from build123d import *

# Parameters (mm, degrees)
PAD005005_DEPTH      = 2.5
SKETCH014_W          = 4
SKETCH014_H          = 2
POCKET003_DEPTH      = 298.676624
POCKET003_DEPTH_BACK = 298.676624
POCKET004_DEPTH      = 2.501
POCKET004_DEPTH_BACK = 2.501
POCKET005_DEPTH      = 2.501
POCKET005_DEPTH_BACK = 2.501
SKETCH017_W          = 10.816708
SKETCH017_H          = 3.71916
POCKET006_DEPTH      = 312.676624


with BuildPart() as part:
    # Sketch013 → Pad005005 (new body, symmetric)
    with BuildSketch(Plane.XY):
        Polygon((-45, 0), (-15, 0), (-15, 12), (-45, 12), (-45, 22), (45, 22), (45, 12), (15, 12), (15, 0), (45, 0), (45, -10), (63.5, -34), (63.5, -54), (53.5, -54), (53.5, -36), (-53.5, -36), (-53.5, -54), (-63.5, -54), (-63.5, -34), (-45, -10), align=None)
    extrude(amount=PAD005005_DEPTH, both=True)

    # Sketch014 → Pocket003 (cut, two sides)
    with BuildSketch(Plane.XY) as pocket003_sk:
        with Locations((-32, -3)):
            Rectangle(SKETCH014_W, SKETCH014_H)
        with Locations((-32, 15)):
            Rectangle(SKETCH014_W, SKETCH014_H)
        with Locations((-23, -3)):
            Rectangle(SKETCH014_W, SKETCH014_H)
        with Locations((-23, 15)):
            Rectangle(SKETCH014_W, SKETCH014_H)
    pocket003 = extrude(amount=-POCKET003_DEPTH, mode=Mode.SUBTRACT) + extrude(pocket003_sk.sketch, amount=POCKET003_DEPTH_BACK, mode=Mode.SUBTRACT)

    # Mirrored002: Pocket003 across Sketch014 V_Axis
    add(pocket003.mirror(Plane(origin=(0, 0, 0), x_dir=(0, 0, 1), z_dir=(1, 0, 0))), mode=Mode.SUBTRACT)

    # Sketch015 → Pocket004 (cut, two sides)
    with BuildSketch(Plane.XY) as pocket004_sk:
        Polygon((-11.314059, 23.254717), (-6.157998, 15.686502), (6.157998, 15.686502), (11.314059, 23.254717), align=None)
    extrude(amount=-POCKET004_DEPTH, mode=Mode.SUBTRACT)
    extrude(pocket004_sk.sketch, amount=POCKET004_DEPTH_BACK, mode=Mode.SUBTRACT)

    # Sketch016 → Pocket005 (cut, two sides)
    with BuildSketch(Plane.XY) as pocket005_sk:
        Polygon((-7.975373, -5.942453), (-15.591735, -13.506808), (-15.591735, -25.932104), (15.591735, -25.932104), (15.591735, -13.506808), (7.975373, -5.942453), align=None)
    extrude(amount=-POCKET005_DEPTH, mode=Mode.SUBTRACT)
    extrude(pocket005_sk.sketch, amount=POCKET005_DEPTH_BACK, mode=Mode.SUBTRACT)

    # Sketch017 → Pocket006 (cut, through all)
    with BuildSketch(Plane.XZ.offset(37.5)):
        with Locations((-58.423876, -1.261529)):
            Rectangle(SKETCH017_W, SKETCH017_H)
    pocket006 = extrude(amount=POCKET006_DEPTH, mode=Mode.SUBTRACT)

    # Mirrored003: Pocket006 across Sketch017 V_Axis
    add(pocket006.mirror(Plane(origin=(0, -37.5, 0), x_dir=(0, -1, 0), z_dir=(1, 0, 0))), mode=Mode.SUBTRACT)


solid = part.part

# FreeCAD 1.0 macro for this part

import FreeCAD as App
import Part
import Sketcher
Q = App.Units.Quantity

doc = App.newDocument("Part")
body = doc.addObject("PartDesign::Body", "Body")

sketch1 = body.newObject("Sketcher::SketchObject", "Sketch")
sketch1.AttachmentSupport = (doc.getObject("XY_Plane"), [""])
sketch1.MapMode = "FlatFace"
sketch1.addGeometry(Part.LineSegment(App.Vector(-15, 0, 0), App.Vector(-45, 0, 0)), False)
sketch1.addGeometry(Part.LineSegment(App.Vector(-45, 0, 0), App.Vector(-45, -10, 0)), False)
sketch1.addGeometry(Part.LineSegment(App.Vector(-45, -10, 0), App.Vector(-63.5, -34, 0)), False)
sketch1.addGeometry(Part.LineSegment(App.Vector(-63.5, -34, 0), App.Vector(-63.5, -54, 0)), False)
sketch1.addGeometry(Part.LineSegment(App.Vector(-63.5, -54, 0), App.Vector(-53.5, -54, 0)), False)
sketch1.addGeometry(Part.LineSegment(App.Vector(-53.5, -54, 0), App.Vector(-53.5, -36, 0)), False)
sketch1.addGeometry(Part.LineSegment(App.Vector(-53.5, -36, 0), App.Vector(53.5, -36, 0)), False)
sketch1.addGeometry(Part.LineSegment(App.Vector(53.5, -36, 0), App.Vector(53.5, -54, 0)), False)
sketch1.addGeometry(Part.LineSegment(App.Vector(53.5, -54, 0), App.Vector(63.5, -54, 0)), False)
sketch1.addGeometry(Part.LineSegment(App.Vector(63.5, -54, 0), App.Vector(63.5, -34, 0)), False)
sketch1.addGeometry(Part.LineSegment(App.Vector(63.5, -34, 0), App.Vector(45, -10, 0)), False)
sketch1.addGeometry(Part.LineSegment(App.Vector(45, -10, 0), App.Vector(45, 0, 0)), False)
sketch1.addGeometry(Part.LineSegment(App.Vector(45, 0, 0), App.Vector(15, 0, 0)), False)
sketch1.addGeometry(Part.LineSegment(App.Vector(15, 0, 0), App.Vector(15, 12, 0)), False)
sketch1.addGeometry(Part.LineSegment(App.Vector(15, 12, 0), App.Vector(45, 12, 0)), False)
sketch1.addGeometry(Part.LineSegment(App.Vector(45, 12, 0), App.Vector(45, 22, 0)), False)
sketch1.addGeometry(Part.LineSegment(App.Vector(45, 22, 0), App.Vector(-45, 22, 0)), False)
sketch1.addGeometry(Part.LineSegment(App.Vector(-45, 22, 0), App.Vector(-45, 12, 0)), False)
sketch1.addGeometry(Part.LineSegment(App.Vector(-45, 12, 0), App.Vector(-15, 12, 0)), False)
sketch1.addGeometry(Part.LineSegment(App.Vector(-15, 12, 0), App.Vector(-15, 0, 0)), False)
sketch1.addConstraint(Sketcher.Constraint("Coincident", 0, 2, 1, 1))
sketch1.addConstraint(Sketcher.Constraint("Coincident", 1, 2, 2, 1))
sketch1.addConstraint(Sketcher.Constraint("Coincident", 2, 2, 3, 1))
sketch1.addConstraint(Sketcher.Constraint("Coincident", 3, 2, 4, 1))
sketch1.addConstraint(Sketcher.Constraint("Coincident", 4, 2, 5, 1))
sketch1.addConstraint(Sketcher.Constraint("Coincident", 5, 2, 6, 1))
sketch1.addConstraint(Sketcher.Constraint("Coincident", 6, 2, 7, 1))
sketch1.addConstraint(Sketcher.Constraint("Coincident", 7, 2, 8, 1))
sketch1.addConstraint(Sketcher.Constraint("Coincident", 8, 2, 9, 1))
sketch1.addConstraint(Sketcher.Constraint("Coincident", 9, 2, 10, 1))
sketch1.addConstraint(Sketcher.Constraint("Coincident", 10, 2, 11, 1))
sketch1.addConstraint(Sketcher.Constraint("Coincident", 11, 2, 12, 1))
sketch1.addConstraint(Sketcher.Constraint("Coincident", 12, 2, 13, 1))
sketch1.addConstraint(Sketcher.Constraint("Coincident", 13, 2, 14, 1))
sketch1.addConstraint(Sketcher.Constraint("Coincident", 14, 2, 15, 1))
sketch1.addConstraint(Sketcher.Constraint("Coincident", 15, 2, 16, 1))
sketch1.addConstraint(Sketcher.Constraint("Coincident", 16, 2, 17, 1))
sketch1.addConstraint(Sketcher.Constraint("Coincident", 17, 2, 18, 1))
sketch1.addConstraint(Sketcher.Constraint("Coincident", 18, 2, 19, 1))
sketch1.addConstraint(Sketcher.Constraint("Coincident", 19, 2, 0, 1))
sketch1.addConstraint(Sketcher.Constraint("Horizontal", 0))
sketch1.addConstraint(Sketcher.Constraint("Vertical", 1))
sketch1.addConstraint(Sketcher.Constraint("Vertical", 3))
sketch1.addConstraint(Sketcher.Constraint("Horizontal", 4))
sketch1.addConstraint(Sketcher.Constraint("Vertical", 5))
sketch1.addConstraint(Sketcher.Constraint("Horizontal", 6))
sketch1.addConstraint(Sketcher.Constraint("Vertical", 7))
sketch1.addConstraint(Sketcher.Constraint("Horizontal", 8))
sketch1.addConstraint(Sketcher.Constraint("Vertical", 9))
sketch1.addConstraint(Sketcher.Constraint("Vertical", 11))
sketch1.addConstraint(Sketcher.Constraint("Horizontal", 12))
sketch1.addConstraint(Sketcher.Constraint("Vertical", 13))
sketch1.addConstraint(Sketcher.Constraint("Horizontal", 14))
sketch1.addConstraint(Sketcher.Constraint("Vertical", 15))
sketch1.addConstraint(Sketcher.Constraint("Horizontal", 16))
sketch1.addConstraint(Sketcher.Constraint("Vertical", 17))
sketch1.addConstraint(Sketcher.Constraint("Horizontal", 18))
sketch1.addConstraint(Sketcher.Constraint("Vertical", 19))
sketch1.addConstraint(Sketcher.Constraint("Symmetric", 0, 2, 11, 2, -1, 1))
sketch1.addConstraint(Sketcher.Constraint("Symmetric", 4, 2, 7, 2, -2))
sketch1.addConstraint(Sketcher.Constraint("Symmetric", 2, 2, 9, 2, -2))
sketch1.addConstraint(Sketcher.Constraint("Symmetric", 14, 2, 17, 2, -2))
sketch1.addConstraint(Sketcher.Constraint("Symmetric", 12, 2, 19, 2, -2))
sketch1.addConstraint(Sketcher.Constraint("Horizontal", 1, 2, 10, 2))
sketch1.addConstraint(Sketcher.Constraint("Vertical", 11, 2, 14, 2))
sketch1.addConstraint(Sketcher.Constraint("Equal", 8, 1))
sketch1.addConstraint(Sketcher.Constraint("Equal", 11, 15))
sketch1.addConstraint(Sketcher.Constraint("DistanceX", 0, 2, 0, 1, Q("30 mm")))
sketch1.addConstraint(Sketcher.Constraint("DistanceX", 4, 1, 4, 2, Q("10 mm")))
sketch1.addConstraint(Sketcher.Constraint("DistanceX", 6, 1, 6, 2, Q("107 mm")))
sketch1.addConstraint(Sketcher.Constraint("DistanceX", 16, 2, 16, 1, Q("90 mm")))
sketch1.addConstraint(Sketcher.Constraint("DistanceY", 3, 2, 3, 1, Q("20 mm")))
sketch1.addConstraint(Sketcher.Constraint("DistanceY", 5, 1, 5, 2, Q("18 mm")))
sketch1.addConstraint(Sketcher.Constraint("DistanceY", 13, 1, 13, 2, Q("12 mm")))
sketch1.addConstraint(Sketcher.Constraint("DistanceY", 2, 2, -1, 1, Q("34 mm")))
pad1 = body.newObject("PartDesign::Pad", "Pad")
pad1.Profile = sketch1
pad1.Length = 5
pad1.Midplane = True

sketch2 = body.newObject("Sketcher::SketchObject", "Sketch001")
sketch2.AttachmentSupport = (doc.getObject("XY_Plane"), [""])
sketch2.MapMode = "FlatFace"
sketch2.addGeometry(Part.LineSegment(App.Vector(-34, -2, 0), App.Vector(-34, -4, 0)), False)
sketch2.addGeometry(Part.LineSegment(App.Vector(-34, -4, 0), App.Vector(-30, -4, 0)), False)
sketch2.addGeometry(Part.LineSegment(App.Vector(-30, -4, 0), App.Vector(-30, -2, 0)), False)
sketch2.addGeometry(Part.LineSegment(App.Vector(-30, -2, 0), App.Vector(-34, -2, 0)), False)
sketch2.addGeometry(Part.LineSegment(App.Vector(-34, 16, 0), App.Vector(-34, 14, 0)), False)
sketch2.addGeometry(Part.LineSegment(App.Vector(-34, 14, 0), App.Vector(-30, 14, 0)), False)
sketch2.addGeometry(Part.LineSegment(App.Vector(-30, 14, 0), App.Vector(-30, 16, 0)), False)
sketch2.addGeometry(Part.LineSegment(App.Vector(-30, 16, 0), App.Vector(-34, 16, 0)), False)
sketch2.addGeometry(Part.LineSegment(App.Vector(-25, -2, 0), App.Vector(-25, -4, 0)), False)
sketch2.addGeometry(Part.LineSegment(App.Vector(-25, -4, 0), App.Vector(-21, -4, 0)), False)
sketch2.addGeometry(Part.LineSegment(App.Vector(-21, -4, 0), App.Vector(-21, -2, 0)), False)
sketch2.addGeometry(Part.LineSegment(App.Vector(-21, -2, 0), App.Vector(-25, -2, 0)), False)
sketch2.addGeometry(Part.LineSegment(App.Vector(-25, 16, 0), App.Vector(-25, 14, 0)), False)
sketch2.addGeometry(Part.LineSegment(App.Vector(-25, 14, 0), App.Vector(-21, 14, 0)), False)
sketch2.addGeometry(Part.LineSegment(App.Vector(-21, 14, 0), App.Vector(-21, 16, 0)), False)
sketch2.addGeometry(Part.LineSegment(App.Vector(-21, 16, 0), App.Vector(-25, 16, 0)), False)
sketch2.addConstraint(Sketcher.Constraint("Coincident", 0, 2, 1, 1))
sketch2.addConstraint(Sketcher.Constraint("Coincident", 1, 2, 2, 1))
sketch2.addConstraint(Sketcher.Constraint("Coincident", 2, 2, 3, 1))
sketch2.addConstraint(Sketcher.Constraint("Coincident", 3, 2, 0, 1))
sketch2.addConstraint(Sketcher.Constraint("Coincident", 4, 2, 5, 1))
sketch2.addConstraint(Sketcher.Constraint("Coincident", 5, 2, 6, 1))
sketch2.addConstraint(Sketcher.Constraint("Coincident", 6, 2, 7, 1))
sketch2.addConstraint(Sketcher.Constraint("Coincident", 7, 2, 4, 1))
sketch2.addConstraint(Sketcher.Constraint("Coincident", 8, 2, 9, 1))
sketch2.addConstraint(Sketcher.Constraint("Coincident", 9, 2, 10, 1))
sketch2.addConstraint(Sketcher.Constraint("Coincident", 10, 2, 11, 1))
sketch2.addConstraint(Sketcher.Constraint("Coincident", 11, 2, 8, 1))
sketch2.addConstraint(Sketcher.Constraint("Coincident", 12, 2, 13, 1))
sketch2.addConstraint(Sketcher.Constraint("Coincident", 13, 2, 14, 1))
sketch2.addConstraint(Sketcher.Constraint("Coincident", 14, 2, 15, 1))
sketch2.addConstraint(Sketcher.Constraint("Coincident", 15, 2, 12, 1))
sketch2.addConstraint(Sketcher.Constraint("Vertical", 0))
sketch2.addConstraint(Sketcher.Constraint("Horizontal", 1))
sketch2.addConstraint(Sketcher.Constraint("Vertical", 2))
sketch2.addConstraint(Sketcher.Constraint("Horizontal", 3))
sketch2.addConstraint(Sketcher.Constraint("Vertical", 4))
sketch2.addConstraint(Sketcher.Constraint("Horizontal", 5))
sketch2.addConstraint(Sketcher.Constraint("Vertical", 6))
sketch2.addConstraint(Sketcher.Constraint("Horizontal", 7))
sketch2.addConstraint(Sketcher.Constraint("Vertical", 8))
sketch2.addConstraint(Sketcher.Constraint("Horizontal", 9))
sketch2.addConstraint(Sketcher.Constraint("Vertical", 10))
sketch2.addConstraint(Sketcher.Constraint("Horizontal", 11))
sketch2.addConstraint(Sketcher.Constraint("Vertical", 12))
sketch2.addConstraint(Sketcher.Constraint("Horizontal", 13))
sketch2.addConstraint(Sketcher.Constraint("Vertical", 14))
sketch2.addConstraint(Sketcher.Constraint("Horizontal", 15))
sketch2.addConstraint(Sketcher.Constraint("Horizontal", 1, 2, 8, 2))
sketch2.addConstraint(Sketcher.Constraint("Horizontal", 3, 2, 10, 2))
sketch2.addConstraint(Sketcher.Constraint("Horizontal", 5, 2, 12, 2))
sketch2.addConstraint(Sketcher.Constraint("Horizontal", 7, 2, 14, 2))
sketch2.addConstraint(Sketcher.Constraint("Vertical", 3, 2, 4, 2))
sketch2.addConstraint(Sketcher.Constraint("Vertical", 2, 2, 5, 2))
sketch2.addConstraint(Sketcher.Constraint("Vertical", 11, 2, 12, 2))
sketch2.addConstraint(Sketcher.Constraint("Vertical", 10, 2, 13, 2))
sketch2.addConstraint(Sketcher.Constraint("Equal", 7, 9))
sketch2.addConstraint(Sketcher.Constraint("Equal", 2, 4))
sketch2.addConstraint(Sketcher.Constraint("DistanceX", 1, 1, 1, 2, Q("4 mm")))
sketch2.addConstraint(Sketcher.Constraint("DistanceY", 0, 2, 0, 1, Q("2 mm")))
sketch2.addConstraint(Sketcher.Constraint("DistanceX", 0, 2, -1, 1, Q("34 mm")))
sketch2.addConstraint(Sketcher.Constraint("DistanceY", 0, 2, -1, 1, Q("4 mm")))
sketch2.addConstraint(Sketcher.Constraint("DistanceY", -1, 1, 4, 2, Q("14 mm")))
sketch2.addConstraint(Sketcher.Constraint("DistanceX", 8, 2, -1, 1, Q("25 mm")))
pocket1 = body.newObject("PartDesign::Pocket", "Pocket")
pocket1.Profile = sketch2
pocket1.Type = "ThroughAll"
pocket1.Midplane = True
doc.recompute()

mirrored = body.newObject("PartDesign::Mirrored", "Mirrored")
mirrored.Originals = [pocket1]
mirrored.MirrorPlane = (doc.getObject("YZ_Plane"), [""])
body.Tip = mirrored

sketch3 = body.newObject("Sketcher::SketchObject", "Sketch002")
sketch3.AttachmentSupport = (doc.getObject("XY_Plane"), [""])
sketch3.MapMode = "FlatFace"
sketch3.addGeometry(Part.LineSegment(App.Vector(-11.314059, 23.254717, 0), App.Vector(-6.157998, 15.686502, 0)), False)
sketch3.addGeometry(Part.LineSegment(App.Vector(-6.157998, 15.686502, 0), App.Vector(6.157998, 15.686502, 0)), False)
sketch3.addGeometry(Part.LineSegment(App.Vector(6.157998, 15.686502, 0), App.Vector(11.314059, 23.254717, 0)), False)
sketch3.addGeometry(Part.LineSegment(App.Vector(11.314059, 23.254717, 0), App.Vector(-11.314059, 23.254717, 0)), False)
sketch3.addConstraint(Sketcher.Constraint("Coincident", 0, 2, 1, 1))
sketch3.addConstraint(Sketcher.Constraint("Coincident", 1, 2, 2, 1))
sketch3.addConstraint(Sketcher.Constraint("Coincident", 2, 2, 3, 1))
sketch3.addConstraint(Sketcher.Constraint("Coincident", 3, 2, 0, 1))
sketch3.addConstraint(Sketcher.Constraint("Horizontal", 1))
sketch3.addConstraint(Sketcher.Constraint("Horizontal", 3))
sketch3.addConstraint(Sketcher.Constraint("Equal", 0, 2))
sketch3.addConstraint(Sketcher.Constraint("DistanceX", 3, 2, 3, 1, Q("22.628118 mm")))
sketch3.addConstraint(Sketcher.Constraint("DistanceX", 1, 1, 1, 2, Q("12.315996 mm")))
sketch3.addConstraint(Sketcher.Constraint("DistanceX", -1, 1, 2, 2, Q("11.314059 mm")))
sketch3.addConstraint(Sketcher.Constraint("Distance", 0, Q("9.157666 mm")))
sketch3.addConstraint(Sketcher.Constraint("DistanceY", -1, 1, 0, 2, Q("15.686502 mm")))
pocket2 = body.newObject("PartDesign::Pocket", "Pocket001")
pocket2.Profile = sketch3
pocket2.Type = "ThroughAll"
pocket2.Midplane = True

sketch4 = body.newObject("Sketcher::SketchObject", "Sketch003")
sketch4.AttachmentSupport = (doc.getObject("XY_Plane"), [""])
sketch4.MapMode = "FlatFace"
sketch4.addGeometry(Part.LineSegment(App.Vector(-7.975373, -5.942453, 0), App.Vector(-15.591735, -13.506808, 0)), False)
sketch4.addGeometry(Part.LineSegment(App.Vector(-15.591735, -13.506808, 0), App.Vector(-15.591735, -25.932104, 0)), False)
sketch4.addGeometry(Part.LineSegment(App.Vector(-15.591735, -25.932104, 0), App.Vector(15.591735, -25.932104, 0)), False)
sketch4.addGeometry(Part.LineSegment(App.Vector(15.591735, -25.932104, 0), App.Vector(15.591735, -13.506808, 0)), False)
sketch4.addGeometry(Part.LineSegment(App.Vector(15.591735, -13.506808, 0), App.Vector(7.975373, -5.942453, 0)), False)
sketch4.addGeometry(Part.LineSegment(App.Vector(7.975373, -5.942453, 0), App.Vector(-7.975373, -5.942453, 0)), False)
sketch4.addConstraint(Sketcher.Constraint("Coincident", 0, 2, 1, 1))
sketch4.addConstraint(Sketcher.Constraint("Coincident", 1, 2, 2, 1))
sketch4.addConstraint(Sketcher.Constraint("Coincident", 2, 2, 3, 1))
sketch4.addConstraint(Sketcher.Constraint("Coincident", 3, 2, 4, 1))
sketch4.addConstraint(Sketcher.Constraint("Coincident", 4, 2, 5, 1))
sketch4.addConstraint(Sketcher.Constraint("Coincident", 5, 2, 0, 1))
sketch4.addConstraint(Sketcher.Constraint("Vertical", 1))
sketch4.addConstraint(Sketcher.Constraint("Horizontal", 2))
sketch4.addConstraint(Sketcher.Constraint("Vertical", 3))
sketch4.addConstraint(Sketcher.Constraint("Horizontal", 5))
sketch4.addConstraint(Sketcher.Constraint("Symmetric", 0, 2, 3, 2, -2))
sketch4.addConstraint(Sketcher.Constraint("Equal", 0, 4))
sketch4.addConstraint(Sketcher.Constraint("DistanceX", 2, 1, 2, 2, Q("31.18347 mm")))
sketch4.addConstraint(Sketcher.Constraint("Distance", 0, Q("10.734451 mm")))
sketch4.addConstraint(Sketcher.Constraint("DistanceX", 5, 2, 5, 1, Q("15.950746 mm")))
sketch4.addConstraint(Sketcher.Constraint("DistanceY", 1, 2, 1, 1, Q("12.425296 mm")))
sketch4.addConstraint(Sketcher.Constraint("DistanceY", 0, 2, -1, 1, Q("13.506808 mm")))
pocket3 = body.newObject("PartDesign::Pocket", "Pocket002")
pocket3.Profile = sketch4
pocket3.Type = "ThroughAll"
pocket3.Midplane = True

sketch5 = body.newObject("Sketcher::SketchObject", "Sketch004")
sketch5.AttachmentSupport = (doc.getObject("XZ_Plane"), [""])
sketch5.MapMode = "FlatFace"
sketch5.AttachmentOffset = App.Placement(App.Vector(0, 0, 37.5), App.Rotation())
sketch5.addGeometry(Part.LineSegment(App.Vector(-63.83223, 0.598051, 0), App.Vector(-63.83223, -3.121109, 0)), False)
sketch5.addGeometry(Part.LineSegment(App.Vector(-63.83223, -3.121109, 0), App.Vector(-53.015522, -3.121109, 0)), False)
sketch5.addGeometry(Part.LineSegment(App.Vector(-53.015522, -3.121109, 0), App.Vector(-53.015522, 0.598051, 0)), False)
sketch5.addGeometry(Part.LineSegment(App.Vector(-53.015522, 0.598051, 0), App.Vector(-63.83223, 0.598051, 0)), False)
sketch5.addConstraint(Sketcher.Constraint("Coincident", 0, 2, 1, 1))
sketch5.addConstraint(Sketcher.Constraint("Coincident", 1, 2, 2, 1))
sketch5.addConstraint(Sketcher.Constraint("Coincident", 2, 2, 3, 1))
sketch5.addConstraint(Sketcher.Constraint("Coincident", 3, 2, 0, 1))
sketch5.addConstraint(Sketcher.Constraint("Vertical", 0))
sketch5.addConstraint(Sketcher.Constraint("Horizontal", 1))
sketch5.addConstraint(Sketcher.Constraint("Vertical", 2))
sketch5.addConstraint(Sketcher.Constraint("Horizontal", 3))
sketch5.addConstraint(Sketcher.Constraint("DistanceX", 1, 1, 1, 2, Q("10.816708 mm")))
sketch5.addConstraint(Sketcher.Constraint("DistanceY", 0, 2, 0, 1, Q("3.71916 mm")))
sketch5.addConstraint(Sketcher.Constraint("DistanceX", 0, 2, -1, 1, Q("63.83223 mm")))
sketch5.addConstraint(Sketcher.Constraint("DistanceY", 0, 2, -1, 1, Q("3.121109 mm")))
pocket4 = body.newObject("PartDesign::Pocket", "Pocket003")
pocket4.Profile = sketch5
pocket4.Type = "ThroughAll"
pocket4.Reversed = True
doc.recompute()

mirrored2 = body.newObject("PartDesign::Mirrored", "Mirrored001")
mirrored2.Originals = [pocket4]
mirrored2.MirrorPlane = (doc.getObject("YZ_Plane"), [""])
body.Tip = mirrored2

doc.recompute()
